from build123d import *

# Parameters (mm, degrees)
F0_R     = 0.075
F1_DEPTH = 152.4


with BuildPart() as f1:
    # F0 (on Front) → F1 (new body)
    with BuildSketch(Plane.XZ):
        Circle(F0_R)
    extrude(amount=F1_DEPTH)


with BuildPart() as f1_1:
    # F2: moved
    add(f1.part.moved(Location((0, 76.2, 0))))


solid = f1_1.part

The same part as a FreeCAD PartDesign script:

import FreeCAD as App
import Part
import Sketcher

V = App.Vector
Q = App.Units.Quantity

doc = App.newDocument("Part")
body = doc.addObject("PartDesign::Body", "Body")

# Sketch on XZ plane
sketch1 = body.newObject("Sketcher::SketchObject", "Sketch")
sketch1.AttachmentSupport = (doc.getObject("XZ_Plane"), [""])
sketch1.MapMode = "FlatFace"
sketch1.addGeometry(Part.Circle(V(0, 0, 0), V(0, 0, 1), 0.07), False)
sketch1.addConstraint([
    Sketcher.Constraint("Coincident", 0, 3, -1, 1),
    Sketcher.Constraint("Diameter", 0, 0.15),
])
pad1 = body.newObject("PartDesign::Pad", "Pad")
pad1.Profile = sketch1
pad1.Length = Q("6 in")
body2 = doc.addObject("PartDesign::Body", "Body001")
doc.recompute()

body.Placement = App.Placement(V(0, 76.2, 0), App.Rotation(V(0, 0, 1), 0))
boolean = body2.newObject("PartDesign::Boolean", "Boolean")
boolean.Type = "Fuse"
boolean.addObjects([body])

doc.recompute()
